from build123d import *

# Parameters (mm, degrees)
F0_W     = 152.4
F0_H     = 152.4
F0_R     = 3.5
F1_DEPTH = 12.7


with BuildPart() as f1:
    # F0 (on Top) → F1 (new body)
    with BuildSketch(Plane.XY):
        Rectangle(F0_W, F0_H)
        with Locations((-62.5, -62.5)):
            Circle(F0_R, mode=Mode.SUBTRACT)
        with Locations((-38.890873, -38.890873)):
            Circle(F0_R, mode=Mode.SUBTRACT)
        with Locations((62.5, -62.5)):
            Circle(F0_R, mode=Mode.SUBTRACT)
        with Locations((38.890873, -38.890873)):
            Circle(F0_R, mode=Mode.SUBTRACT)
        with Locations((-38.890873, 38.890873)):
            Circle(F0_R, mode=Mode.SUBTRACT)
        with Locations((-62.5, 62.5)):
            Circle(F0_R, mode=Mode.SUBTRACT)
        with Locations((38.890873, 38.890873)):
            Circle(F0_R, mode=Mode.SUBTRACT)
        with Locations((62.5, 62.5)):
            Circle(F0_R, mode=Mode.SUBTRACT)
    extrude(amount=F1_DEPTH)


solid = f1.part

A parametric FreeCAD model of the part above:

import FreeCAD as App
import Part
import Sketcher
Q = App.Units.Quantity


def add_polygon(sketch, points):
    """Adds a closed chain of lines whose ends are joined by coincident constraints."""
    first, n = sketch.GeometryCount, len(points)
    for a, b in zip(points, points[1:] + points[:1]):
        sketch.addGeometry(Part.LineSegment(App.Vector(*a, 0), App.Vector(*b, 0)), False)
    for i in range(n):
        sketch.addConstraint(Sketcher.Constraint("Coincident", first + i, 2, first + (i + 1) % n, 1))

doc = App.newDocument("Part")
body = doc.addObject("PartDesign::Body", "Body")

sketch1 = body.newObject("Sketcher::SketchObject", "Sketch")
sketch1.AttachmentSupport = (doc.getObject("XY_Plane"), [""])
sketch1.MapMode = "FlatFace"
add_polygon(sketch1, [(-76.2, 76.2), (-76.2, -76.2), (76.2, -76.2), (76.2, 76.2)])
sketch1.addGeometry(Part.Circle(App.Vector(-62.5, -62.5, 0), App.Vector(0, 0, 1), 3.5), False)
sketch1.addGeometry(Part.Circle(App.Vector(-38.9, -38.9, 0), App.Vector(0, 0, 1), 3.5), False)
sketch1.addGeometry(Part.Circle(App.Vector(62.5, -62.5, 0), App.Vector(0, 0, 1), 3.5), False)
sketch1.addGeometry(Part.Circle(App.Vector(38.9, -38.9, 0), App.Vector(0, 0, 1), 3.5), False)
sketch1.addGeometry(Part.Circle(App.Vector(-38.9, 38.9, 0), App.Vector(0, 0, 1), 3.5), False)
sketch1.addGeometry(Part.Circle(App.Vector(-62.5, 62.5, 0), App.Vector(0, 0, 1), 3.5), False)
sketch1.addGeometry(Part.Circle(App.Vector(38.9, 38.9, 0), App.Vector(0, 0, 1), 3.5), False)
sketch1.addGeometry(Part.Circle(App.Vector(62.5, 62.5, 0), App.Vector(0, 0, 1), 3.5), False)
sketch1.addConstraint([
    Sketcher.Constraint("Vertical", 0),
    Sketcher.Constraint("Horizontal", 1),
    Sketcher.Constraint("Vertical", 2),
    Sketcher.Constraint("Horizontal", 3),
    Sketcher.Constraint("Equal", 4, 5),
    Sketcher.Constraint("Equal", 5, 6),
    Sketcher.Constraint("Equal", 6, 7),
    Sketcher.Constraint("Equal", 7, 8),
    Sketcher.Constraint("Equal", 8, 9),
    Sketcher.Constraint("Equal", 9, 10),
    Sketcher.Constraint("Equal", 10, 11),
    Sketcher.Constraint("Symmetric", 7, 3, 8, 3, -1, 1),
    Sketcher.Constraint("Symmetric", 6, 3, 9, 3, -1, 1),
    Sketcher.Constraint("Symmetric", 5, 3, 10, 3, -1, 1),
    Sketcher.Constraint("Symmetric", 4, 3, 11, 3, -1, 1),
    Sketcher.Constraint("Symmetric", 0, 2, 2, 2, -1, 1),
    Sketcher.Constraint("Symmetric", 4, 3, 6, 3, -2),
    Sketcher.Constraint("Symmetric", 5, 3, 7, 3, -2),
    Sketcher.Constraint("Equal", 3, 0),
    Sketcher.Constraint("DistanceX", 1, 1, 1, 2, Q("6 in")),
    Sketcher.Constraint("Diameter", 4, Q("7 mm")),
    Sketcher.Constraint("DistanceX", 4, 3, -1, 1, Q("62.5 mm")),
    Sketcher.Constraint("DistanceY", 4, 3, -1, 1, Q("62.5 mm")),
    Sketcher.Constraint("DistanceX", 5, 3, -1, 1, Q("38.890873 mm")),
    Sketcher.Constraint("DistanceY", 5, 3, -1, 1, Q("38.890873 mm")),
])
pad1 = body.newObject("PartDesign::Pad", "Pad")
pad1.Profile = sketch1
pad1.Length = Q("0.5 in")

doc.recompute()
